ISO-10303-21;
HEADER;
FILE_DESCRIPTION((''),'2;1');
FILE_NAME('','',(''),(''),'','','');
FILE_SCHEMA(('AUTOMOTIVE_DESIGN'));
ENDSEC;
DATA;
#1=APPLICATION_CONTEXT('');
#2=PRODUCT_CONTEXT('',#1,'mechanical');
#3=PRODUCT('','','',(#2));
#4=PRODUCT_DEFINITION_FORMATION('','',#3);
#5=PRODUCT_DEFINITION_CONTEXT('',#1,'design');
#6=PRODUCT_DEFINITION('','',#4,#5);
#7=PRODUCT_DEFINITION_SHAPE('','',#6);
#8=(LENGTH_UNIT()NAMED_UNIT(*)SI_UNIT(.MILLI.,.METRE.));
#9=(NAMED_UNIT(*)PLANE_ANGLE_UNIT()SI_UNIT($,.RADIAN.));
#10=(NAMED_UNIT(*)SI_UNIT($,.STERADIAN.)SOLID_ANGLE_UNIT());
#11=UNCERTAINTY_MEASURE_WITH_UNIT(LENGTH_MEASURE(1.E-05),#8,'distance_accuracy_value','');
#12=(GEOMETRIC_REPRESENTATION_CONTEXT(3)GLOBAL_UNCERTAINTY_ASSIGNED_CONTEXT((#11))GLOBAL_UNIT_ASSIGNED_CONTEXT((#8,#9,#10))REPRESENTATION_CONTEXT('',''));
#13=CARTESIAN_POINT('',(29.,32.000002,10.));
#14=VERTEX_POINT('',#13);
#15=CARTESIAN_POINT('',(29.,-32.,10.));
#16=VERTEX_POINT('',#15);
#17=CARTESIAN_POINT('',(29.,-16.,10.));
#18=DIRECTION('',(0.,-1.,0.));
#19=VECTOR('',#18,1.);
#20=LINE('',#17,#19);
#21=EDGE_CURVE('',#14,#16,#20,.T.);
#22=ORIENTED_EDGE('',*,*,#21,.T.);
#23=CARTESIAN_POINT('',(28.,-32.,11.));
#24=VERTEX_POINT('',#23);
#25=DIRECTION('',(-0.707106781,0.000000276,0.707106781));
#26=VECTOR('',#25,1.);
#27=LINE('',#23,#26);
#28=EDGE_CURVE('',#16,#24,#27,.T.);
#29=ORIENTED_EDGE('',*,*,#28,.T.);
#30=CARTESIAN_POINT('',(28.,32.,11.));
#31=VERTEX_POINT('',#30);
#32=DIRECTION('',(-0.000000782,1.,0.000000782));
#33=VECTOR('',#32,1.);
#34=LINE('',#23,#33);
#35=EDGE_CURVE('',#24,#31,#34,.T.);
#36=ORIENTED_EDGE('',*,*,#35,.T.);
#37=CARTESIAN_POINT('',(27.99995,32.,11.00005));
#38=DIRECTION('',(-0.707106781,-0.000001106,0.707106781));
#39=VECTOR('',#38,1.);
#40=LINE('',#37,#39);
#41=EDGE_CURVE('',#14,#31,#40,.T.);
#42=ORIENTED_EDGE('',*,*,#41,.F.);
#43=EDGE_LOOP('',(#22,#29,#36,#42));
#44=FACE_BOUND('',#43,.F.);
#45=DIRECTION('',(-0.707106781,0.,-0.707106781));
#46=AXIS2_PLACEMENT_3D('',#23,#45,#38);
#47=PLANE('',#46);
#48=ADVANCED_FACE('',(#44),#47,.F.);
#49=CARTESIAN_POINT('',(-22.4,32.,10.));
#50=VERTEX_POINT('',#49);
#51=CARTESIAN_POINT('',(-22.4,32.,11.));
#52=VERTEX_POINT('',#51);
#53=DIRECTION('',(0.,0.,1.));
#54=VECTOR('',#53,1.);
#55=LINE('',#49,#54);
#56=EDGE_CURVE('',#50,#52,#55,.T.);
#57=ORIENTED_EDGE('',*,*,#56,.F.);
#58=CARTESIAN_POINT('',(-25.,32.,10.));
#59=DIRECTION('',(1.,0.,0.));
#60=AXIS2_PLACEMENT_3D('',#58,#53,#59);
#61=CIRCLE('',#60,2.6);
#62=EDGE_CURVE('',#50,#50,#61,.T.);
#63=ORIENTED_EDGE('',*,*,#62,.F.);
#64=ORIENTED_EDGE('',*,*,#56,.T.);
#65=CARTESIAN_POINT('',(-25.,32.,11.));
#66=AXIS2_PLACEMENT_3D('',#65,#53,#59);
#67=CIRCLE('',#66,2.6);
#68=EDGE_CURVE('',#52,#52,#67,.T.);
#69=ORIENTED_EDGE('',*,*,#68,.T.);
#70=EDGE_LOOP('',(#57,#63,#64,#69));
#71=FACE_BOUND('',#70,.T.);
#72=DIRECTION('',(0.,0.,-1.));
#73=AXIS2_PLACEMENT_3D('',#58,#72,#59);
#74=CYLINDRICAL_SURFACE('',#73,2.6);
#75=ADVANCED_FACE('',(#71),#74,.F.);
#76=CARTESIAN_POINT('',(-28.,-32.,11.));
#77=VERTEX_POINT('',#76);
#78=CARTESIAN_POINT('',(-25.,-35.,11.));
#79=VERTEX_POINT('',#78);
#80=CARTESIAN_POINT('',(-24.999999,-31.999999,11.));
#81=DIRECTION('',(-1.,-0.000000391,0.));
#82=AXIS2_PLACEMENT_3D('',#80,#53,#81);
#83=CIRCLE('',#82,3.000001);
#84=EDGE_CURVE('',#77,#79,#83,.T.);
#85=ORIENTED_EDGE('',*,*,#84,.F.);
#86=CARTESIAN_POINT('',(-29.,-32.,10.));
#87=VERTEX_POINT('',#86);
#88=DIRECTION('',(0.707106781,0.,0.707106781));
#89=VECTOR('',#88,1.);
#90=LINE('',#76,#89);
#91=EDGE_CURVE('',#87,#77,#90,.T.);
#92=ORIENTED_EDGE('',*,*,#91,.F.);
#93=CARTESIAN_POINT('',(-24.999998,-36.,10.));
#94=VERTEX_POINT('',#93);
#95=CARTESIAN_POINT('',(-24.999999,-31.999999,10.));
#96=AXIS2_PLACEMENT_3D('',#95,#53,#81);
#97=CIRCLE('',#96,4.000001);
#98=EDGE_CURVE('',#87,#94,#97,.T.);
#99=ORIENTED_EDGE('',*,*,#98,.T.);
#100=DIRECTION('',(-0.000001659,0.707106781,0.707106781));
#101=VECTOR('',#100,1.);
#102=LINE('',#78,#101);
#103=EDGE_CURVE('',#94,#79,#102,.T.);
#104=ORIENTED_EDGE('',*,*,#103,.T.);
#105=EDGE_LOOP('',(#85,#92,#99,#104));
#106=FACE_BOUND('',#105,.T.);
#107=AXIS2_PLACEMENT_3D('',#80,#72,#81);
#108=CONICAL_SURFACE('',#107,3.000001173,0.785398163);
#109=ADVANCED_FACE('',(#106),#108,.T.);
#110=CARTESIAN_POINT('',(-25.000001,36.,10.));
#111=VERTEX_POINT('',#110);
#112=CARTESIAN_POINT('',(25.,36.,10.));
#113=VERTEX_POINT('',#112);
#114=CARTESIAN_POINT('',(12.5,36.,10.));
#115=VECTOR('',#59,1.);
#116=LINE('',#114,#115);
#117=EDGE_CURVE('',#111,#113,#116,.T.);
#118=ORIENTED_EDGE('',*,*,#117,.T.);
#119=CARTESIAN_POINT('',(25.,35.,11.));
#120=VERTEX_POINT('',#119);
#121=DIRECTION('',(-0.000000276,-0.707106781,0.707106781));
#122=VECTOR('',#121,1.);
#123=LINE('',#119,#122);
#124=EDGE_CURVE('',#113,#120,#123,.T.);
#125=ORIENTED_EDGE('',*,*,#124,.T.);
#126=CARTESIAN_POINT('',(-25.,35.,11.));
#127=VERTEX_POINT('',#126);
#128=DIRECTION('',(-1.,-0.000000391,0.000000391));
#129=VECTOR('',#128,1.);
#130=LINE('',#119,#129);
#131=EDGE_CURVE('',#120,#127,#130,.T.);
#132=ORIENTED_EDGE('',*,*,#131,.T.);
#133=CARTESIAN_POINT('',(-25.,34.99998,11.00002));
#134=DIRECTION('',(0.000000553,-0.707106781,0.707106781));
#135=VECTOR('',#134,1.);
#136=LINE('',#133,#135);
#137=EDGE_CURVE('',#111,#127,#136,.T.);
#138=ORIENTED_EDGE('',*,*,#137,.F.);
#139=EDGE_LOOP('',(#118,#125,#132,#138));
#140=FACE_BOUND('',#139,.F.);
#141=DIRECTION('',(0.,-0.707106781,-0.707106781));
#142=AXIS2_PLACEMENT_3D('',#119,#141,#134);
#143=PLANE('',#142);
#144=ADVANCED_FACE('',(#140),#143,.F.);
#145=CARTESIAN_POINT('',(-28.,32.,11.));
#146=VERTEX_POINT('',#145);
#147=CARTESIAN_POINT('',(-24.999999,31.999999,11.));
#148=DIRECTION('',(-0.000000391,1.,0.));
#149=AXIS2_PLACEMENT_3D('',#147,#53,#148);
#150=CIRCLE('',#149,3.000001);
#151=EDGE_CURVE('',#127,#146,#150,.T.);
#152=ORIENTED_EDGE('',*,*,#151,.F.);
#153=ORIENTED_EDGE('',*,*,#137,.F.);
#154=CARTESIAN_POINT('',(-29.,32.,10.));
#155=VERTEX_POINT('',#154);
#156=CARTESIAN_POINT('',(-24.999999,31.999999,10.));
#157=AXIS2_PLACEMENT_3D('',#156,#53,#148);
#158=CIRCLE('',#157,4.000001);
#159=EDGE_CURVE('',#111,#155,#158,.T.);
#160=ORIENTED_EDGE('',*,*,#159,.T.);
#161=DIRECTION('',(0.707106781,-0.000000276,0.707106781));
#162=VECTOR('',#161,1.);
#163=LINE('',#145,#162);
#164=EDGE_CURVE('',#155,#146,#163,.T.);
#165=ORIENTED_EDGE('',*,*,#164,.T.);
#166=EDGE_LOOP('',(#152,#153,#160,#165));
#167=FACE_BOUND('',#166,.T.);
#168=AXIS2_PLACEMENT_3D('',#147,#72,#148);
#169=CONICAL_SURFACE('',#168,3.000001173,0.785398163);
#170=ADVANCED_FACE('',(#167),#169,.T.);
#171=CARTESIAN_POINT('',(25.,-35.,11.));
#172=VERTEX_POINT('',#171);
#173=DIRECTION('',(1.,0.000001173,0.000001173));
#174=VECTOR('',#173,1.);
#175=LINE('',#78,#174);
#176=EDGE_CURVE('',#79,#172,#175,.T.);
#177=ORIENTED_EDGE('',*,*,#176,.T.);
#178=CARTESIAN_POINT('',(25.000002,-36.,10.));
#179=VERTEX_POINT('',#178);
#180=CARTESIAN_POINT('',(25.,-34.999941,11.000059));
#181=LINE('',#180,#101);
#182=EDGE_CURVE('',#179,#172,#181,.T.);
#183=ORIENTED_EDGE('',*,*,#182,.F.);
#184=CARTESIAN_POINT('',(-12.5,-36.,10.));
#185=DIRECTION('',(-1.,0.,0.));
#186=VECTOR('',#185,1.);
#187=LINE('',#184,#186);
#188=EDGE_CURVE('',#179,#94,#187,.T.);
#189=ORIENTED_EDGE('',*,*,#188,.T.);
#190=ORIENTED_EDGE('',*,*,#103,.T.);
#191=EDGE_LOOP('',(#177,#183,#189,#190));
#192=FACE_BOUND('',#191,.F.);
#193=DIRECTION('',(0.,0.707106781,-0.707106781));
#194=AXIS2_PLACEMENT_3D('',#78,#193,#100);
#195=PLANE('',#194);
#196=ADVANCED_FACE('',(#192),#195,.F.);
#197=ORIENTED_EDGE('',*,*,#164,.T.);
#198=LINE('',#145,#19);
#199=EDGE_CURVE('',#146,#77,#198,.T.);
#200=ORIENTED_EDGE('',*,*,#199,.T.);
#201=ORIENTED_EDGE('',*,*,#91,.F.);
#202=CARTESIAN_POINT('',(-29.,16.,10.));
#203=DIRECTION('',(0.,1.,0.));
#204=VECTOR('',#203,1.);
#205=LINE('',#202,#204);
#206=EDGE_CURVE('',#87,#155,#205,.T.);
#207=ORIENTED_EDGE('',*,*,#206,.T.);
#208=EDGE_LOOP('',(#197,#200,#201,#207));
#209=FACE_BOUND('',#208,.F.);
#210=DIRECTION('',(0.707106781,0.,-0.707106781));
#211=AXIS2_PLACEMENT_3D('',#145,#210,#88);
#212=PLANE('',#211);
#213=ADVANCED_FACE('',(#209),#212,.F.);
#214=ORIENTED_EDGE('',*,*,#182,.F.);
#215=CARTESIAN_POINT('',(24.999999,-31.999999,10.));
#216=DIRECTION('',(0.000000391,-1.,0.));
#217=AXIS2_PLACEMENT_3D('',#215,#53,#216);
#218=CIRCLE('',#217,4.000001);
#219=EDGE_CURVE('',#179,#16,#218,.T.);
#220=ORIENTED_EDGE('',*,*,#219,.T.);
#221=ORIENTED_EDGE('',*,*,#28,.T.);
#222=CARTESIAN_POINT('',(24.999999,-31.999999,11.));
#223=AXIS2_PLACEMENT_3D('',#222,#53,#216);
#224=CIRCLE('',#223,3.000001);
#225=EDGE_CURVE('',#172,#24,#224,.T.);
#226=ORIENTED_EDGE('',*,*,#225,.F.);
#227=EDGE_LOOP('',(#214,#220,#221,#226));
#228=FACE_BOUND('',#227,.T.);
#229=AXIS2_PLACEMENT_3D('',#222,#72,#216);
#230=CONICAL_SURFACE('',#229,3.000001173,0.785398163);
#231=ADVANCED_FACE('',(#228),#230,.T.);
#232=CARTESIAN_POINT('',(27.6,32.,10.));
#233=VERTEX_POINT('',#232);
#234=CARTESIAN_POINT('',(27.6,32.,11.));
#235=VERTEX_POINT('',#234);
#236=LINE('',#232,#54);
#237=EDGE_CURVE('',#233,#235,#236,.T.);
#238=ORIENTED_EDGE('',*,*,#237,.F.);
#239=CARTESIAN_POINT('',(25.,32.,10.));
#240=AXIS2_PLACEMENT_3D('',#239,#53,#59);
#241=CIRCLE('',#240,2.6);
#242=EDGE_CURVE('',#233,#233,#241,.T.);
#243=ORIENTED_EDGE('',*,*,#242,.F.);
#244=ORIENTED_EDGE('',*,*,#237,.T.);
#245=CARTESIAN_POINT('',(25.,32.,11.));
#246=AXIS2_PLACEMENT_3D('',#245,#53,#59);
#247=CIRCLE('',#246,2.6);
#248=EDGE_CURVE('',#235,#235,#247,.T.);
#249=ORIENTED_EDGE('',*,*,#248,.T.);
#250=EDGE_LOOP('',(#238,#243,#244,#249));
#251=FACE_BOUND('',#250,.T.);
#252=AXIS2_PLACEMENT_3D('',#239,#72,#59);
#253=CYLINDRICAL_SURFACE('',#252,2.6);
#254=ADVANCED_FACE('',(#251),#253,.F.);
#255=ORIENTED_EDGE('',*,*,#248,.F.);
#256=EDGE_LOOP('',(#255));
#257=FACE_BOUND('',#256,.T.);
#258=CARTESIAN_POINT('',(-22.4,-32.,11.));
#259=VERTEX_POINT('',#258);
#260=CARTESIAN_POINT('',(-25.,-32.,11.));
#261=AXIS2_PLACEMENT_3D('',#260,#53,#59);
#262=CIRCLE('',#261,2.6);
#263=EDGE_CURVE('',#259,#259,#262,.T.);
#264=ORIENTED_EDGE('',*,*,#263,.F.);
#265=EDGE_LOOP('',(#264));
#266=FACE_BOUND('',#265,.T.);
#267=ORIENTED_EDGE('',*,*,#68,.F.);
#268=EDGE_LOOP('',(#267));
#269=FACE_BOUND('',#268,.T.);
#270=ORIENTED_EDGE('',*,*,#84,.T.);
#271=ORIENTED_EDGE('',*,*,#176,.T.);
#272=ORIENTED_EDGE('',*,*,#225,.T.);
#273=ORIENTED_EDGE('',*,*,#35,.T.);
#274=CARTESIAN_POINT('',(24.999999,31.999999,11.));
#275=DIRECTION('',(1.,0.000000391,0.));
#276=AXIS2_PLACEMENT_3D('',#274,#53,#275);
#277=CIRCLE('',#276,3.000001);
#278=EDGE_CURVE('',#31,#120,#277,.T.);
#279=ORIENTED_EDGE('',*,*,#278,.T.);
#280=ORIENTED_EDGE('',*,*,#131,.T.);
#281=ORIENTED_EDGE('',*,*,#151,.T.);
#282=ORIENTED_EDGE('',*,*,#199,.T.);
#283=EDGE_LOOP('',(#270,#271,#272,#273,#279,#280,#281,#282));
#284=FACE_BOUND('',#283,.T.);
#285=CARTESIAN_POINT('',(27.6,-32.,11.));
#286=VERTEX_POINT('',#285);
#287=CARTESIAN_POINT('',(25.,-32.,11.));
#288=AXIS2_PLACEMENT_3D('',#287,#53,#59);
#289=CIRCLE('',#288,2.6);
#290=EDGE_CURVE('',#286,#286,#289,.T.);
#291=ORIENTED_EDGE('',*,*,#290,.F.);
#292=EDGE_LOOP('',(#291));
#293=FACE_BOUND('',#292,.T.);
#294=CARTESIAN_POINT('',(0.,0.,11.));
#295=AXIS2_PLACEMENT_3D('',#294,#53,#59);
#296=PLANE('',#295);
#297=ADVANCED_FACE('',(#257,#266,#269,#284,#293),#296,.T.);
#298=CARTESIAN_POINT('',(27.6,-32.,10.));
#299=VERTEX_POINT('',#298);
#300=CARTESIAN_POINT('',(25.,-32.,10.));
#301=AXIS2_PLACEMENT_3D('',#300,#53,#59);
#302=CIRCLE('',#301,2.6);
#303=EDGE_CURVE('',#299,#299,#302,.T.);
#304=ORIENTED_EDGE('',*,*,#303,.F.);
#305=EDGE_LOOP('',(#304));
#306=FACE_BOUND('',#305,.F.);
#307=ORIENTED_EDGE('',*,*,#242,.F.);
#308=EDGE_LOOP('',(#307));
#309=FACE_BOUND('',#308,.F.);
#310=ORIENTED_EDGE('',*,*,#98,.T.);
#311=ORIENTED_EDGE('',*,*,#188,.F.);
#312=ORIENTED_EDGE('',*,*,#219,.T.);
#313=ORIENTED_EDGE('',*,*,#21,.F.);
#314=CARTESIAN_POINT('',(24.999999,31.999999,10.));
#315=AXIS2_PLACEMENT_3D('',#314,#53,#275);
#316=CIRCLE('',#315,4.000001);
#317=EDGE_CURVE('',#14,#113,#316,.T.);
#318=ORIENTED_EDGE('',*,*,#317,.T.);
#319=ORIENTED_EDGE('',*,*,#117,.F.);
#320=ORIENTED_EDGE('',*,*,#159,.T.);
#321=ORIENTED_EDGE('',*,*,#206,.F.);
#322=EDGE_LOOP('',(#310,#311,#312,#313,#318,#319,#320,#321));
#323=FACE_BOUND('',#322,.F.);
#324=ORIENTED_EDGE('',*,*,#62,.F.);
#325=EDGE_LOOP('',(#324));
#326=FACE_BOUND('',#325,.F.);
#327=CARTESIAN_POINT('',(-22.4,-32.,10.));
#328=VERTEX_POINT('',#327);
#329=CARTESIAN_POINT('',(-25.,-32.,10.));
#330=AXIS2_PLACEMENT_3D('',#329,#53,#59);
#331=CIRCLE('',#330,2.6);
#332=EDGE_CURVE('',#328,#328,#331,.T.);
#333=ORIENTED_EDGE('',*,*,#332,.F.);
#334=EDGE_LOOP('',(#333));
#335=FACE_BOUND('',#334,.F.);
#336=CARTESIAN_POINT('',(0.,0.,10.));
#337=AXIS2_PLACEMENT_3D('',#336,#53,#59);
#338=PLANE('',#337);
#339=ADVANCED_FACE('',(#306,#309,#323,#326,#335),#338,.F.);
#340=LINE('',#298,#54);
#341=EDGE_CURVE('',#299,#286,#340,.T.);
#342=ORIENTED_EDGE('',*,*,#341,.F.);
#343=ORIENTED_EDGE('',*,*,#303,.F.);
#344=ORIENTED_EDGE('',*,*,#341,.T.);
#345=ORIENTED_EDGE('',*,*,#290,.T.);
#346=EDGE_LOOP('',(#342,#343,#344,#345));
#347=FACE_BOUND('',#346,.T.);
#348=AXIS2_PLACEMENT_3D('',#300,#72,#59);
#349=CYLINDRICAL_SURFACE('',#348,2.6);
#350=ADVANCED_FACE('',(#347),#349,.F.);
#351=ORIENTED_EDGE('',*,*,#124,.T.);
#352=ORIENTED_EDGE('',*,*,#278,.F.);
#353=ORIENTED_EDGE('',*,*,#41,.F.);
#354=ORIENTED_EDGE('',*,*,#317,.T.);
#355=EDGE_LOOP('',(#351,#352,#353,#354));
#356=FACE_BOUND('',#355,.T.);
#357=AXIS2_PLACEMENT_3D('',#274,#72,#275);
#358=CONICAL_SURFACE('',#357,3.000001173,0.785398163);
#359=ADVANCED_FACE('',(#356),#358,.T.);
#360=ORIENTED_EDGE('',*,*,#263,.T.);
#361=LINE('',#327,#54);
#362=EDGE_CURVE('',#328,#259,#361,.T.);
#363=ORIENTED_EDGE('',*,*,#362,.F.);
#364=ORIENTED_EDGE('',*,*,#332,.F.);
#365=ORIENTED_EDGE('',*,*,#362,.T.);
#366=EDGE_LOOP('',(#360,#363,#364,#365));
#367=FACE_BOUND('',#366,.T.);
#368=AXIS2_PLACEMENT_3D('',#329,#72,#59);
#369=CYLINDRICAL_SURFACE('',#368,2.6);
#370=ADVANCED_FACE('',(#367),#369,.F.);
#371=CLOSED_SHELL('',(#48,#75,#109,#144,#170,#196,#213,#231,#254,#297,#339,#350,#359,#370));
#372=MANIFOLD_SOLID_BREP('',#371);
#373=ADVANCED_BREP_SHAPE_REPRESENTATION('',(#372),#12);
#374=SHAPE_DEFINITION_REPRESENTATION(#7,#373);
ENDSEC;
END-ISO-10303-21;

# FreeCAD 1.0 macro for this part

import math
import FreeCAD as App
import Part
import Sketcher
Q = App.Units.Quantity

doc = App.newDocument("Part")
body = doc.addObject("PartDesign::Body", "Body")

# Sketch on XZ plane
sketch1 = doc.addObject("Sketcher::SketchObject", "Sketch")
body.addObject(sketch1)
sketch1.AttachmentSupport = (doc.XZ_Plane, [""])
sketch1.MapMode = "FlatFace"
sketch1.addGeometry(Part.LineSegment(App.Vector(-30, 9, 0), App.Vector(-28, 11, 0)), False)
sketch1.addGeometry(Part.LineSegment(App.Vector(-28, 11, 0), App.Vector(-28, 12, 0)), False)
sketch1.addGeometry(Part.LineSegment(App.Vector(-28, 12, 0), App.Vector(-33, 12, 0)), False)
sketch1.addGeometry(Part.LineSegment(App.Vector(-33, 12, 0), App.Vector(-33, -2, 0)), False)
sketch1.addGeometry(Part.LineSegment(App.Vector(-33, -2, 0), App.Vector(-28, -2, 0)), False)
sketch1.addGeometry(Part.LineSegment(App.Vector(-28, -2, 0), App.Vector(-28, -1, 0)), False)
sketch1.addGeometry(Part.LineSegment(App.Vector(-28, -1, 0), App.Vector(-30, 1, 0)), False)
sketch1.addGeometry(Part.LineSegment(App.Vector(-30, 1, 0), App.Vector(-30, 9, 0)), False)
sketch1.addConstraint(Sketcher.Constraint("Coincident", 0, 2, 1, 1))
sketch1.addConstraint(Sketcher.Constraint("Coincident", 1, 2, 2, 1))
sketch1.addConstraint(Sketcher.Constraint("Coincident", 2, 2, 3, 1))
sketch1.addConstraint(Sketcher.Constraint("Coincident", 3, 2, 4, 1))
sketch1.addConstraint(Sketcher.Constraint("Coincident", 4, 2, 5, 1))
sketch1.addConstraint(Sketcher.Constraint("Coincident", 5, 2, 6, 1))
sketch1.addConstraint(Sketcher.Constraint("Coincident", 6, 2, 7, 1))
sketch1.addConstraint(Sketcher.Constraint("Coincident", 7, 2, 0, 1))
sketch1.addConstraint(Sketcher.Constraint("Vertical", 1))
sketch1.addConstraint(Sketcher.Constraint("Horizontal", 2))
sketch1.addConstraint(Sketcher.Constraint("Vertical", 3))
sketch1.addConstraint(Sketcher.Constraint("Horizontal", 4))
sketch1.addConstraint(Sketcher.Constraint("Vertical", 5))
sketch1.addConstraint(Sketcher.Constraint("Vertical", 7))
sketch1.addConstraint(Sketcher.Constraint("Perpendicular", 0, 6))
sketch1.addConstraint(Sketcher.Constraint("Vertical", 1, 2, 4, 2))
sketch1.addConstraint(Sketcher.Constraint("Equal", 1, 5))
sketch1.addConstraint(Sketcher.Constraint("Equal", 0, 6))
sketch1.addConstraint(Sketcher.Constraint("DistanceX", 2, 2, 2, 1, Q("5 mm")))
sketch1.addConstraint(Sketcher.Constraint("DistanceY", 1, 1, 1, 2, Q("1 mm")))
sketch1.addConstraint(Sketcher.Constraint("DistanceY", 3, 2, 3, 1, Q("14 mm")))
sketch1.addConstraint(Sketcher.Constraint("DistanceY", 7, 1, 7, 2, Q("8 mm")))
sketch1.addConstraint(Sketcher.Constraint("DistanceX", 0, 2, -1, 1, Q("28 mm")))
sketch1.addConstraint(Sketcher.Constraint("DistanceY", -1, 1, 0, 2, Q("11 mm")))

# Sketch on XY plane
sketch2 = doc.addObject("Sketcher::SketchObject", "Sketch001")
body.addObject(sketch2)
sketch2.AttachmentSupport = (doc.XY_Plane, [""])
sketch2.MapMode = "FlatFace"
sketch2.AttachmentOffset = App.Placement(App.Vector(0, 0, -2), App.Rotation())
sketch2.addGeometry(Part.LineSegment(App.Vector(-25, -35, 0), App.Vector(25, -35, 0)), False)
sketch2.addGeometry(Part.ArcOfCircle(Part.Circle(App.Vector(24.999999, -31.999999, 0), App.Vector(0, 0, 1), 3.000001), math.radians(-89.999978), math.radians(-0.000022)), False)
sketch2.addGeometry(Part.LineSegment(App.Vector(28, -32, 0), App.Vector(28, 32, 0)), False)
sketch2.addGeometry(Part.ArcOfCircle(Part.Circle(App.Vector(24.999999, 31.999999, 0), App.Vector(0, 0, 1), 3.000001), math.radians(0.000022), math.radians(89.999978)), False)
sketch2.addGeometry(Part.LineSegment(App.Vector(25, 35, 0), App.Vector(-25, 35, 0)), False)
sketch2.addGeometry(Part.ArcOfCircle(Part.Circle(App.Vector(-24.999999, 31.999999, 0), App.Vector(0, 0, 1), 3.000001), math.radians(90.000022), math.radians(179.999978)), False)
sketch2.addGeometry(Part.LineSegment(App.Vector(-28, 32, 0), App.Vector(-28, -32, 0)), False)
sketch2.addGeometry(Part.ArcOfCircle(Part.Circle(App.Vector(-24.999999, -31.999999, 0), App.Vector(0, 0, 1), 3.000001), math.radians(-179.999978), math.radians(-90.000022)), False)
sketch2.addConstraint(Sketcher.Constraint("Tangent", 0, 2, 1, 1))
sketch2.addConstraint(Sketcher.Constraint("Tangent", 1, 2, 2, 1))
sketch2.addConstraint(Sketcher.Constraint("Tangent", 2, 2, 3, 1))
sketch2.addConstraint(Sketcher.Constraint("Tangent", 3, 2, 4, 1))
sketch2.addConstraint(Sketcher.Constraint("Tangent", 4, 2, 5, 1))
sketch2.addConstraint(Sketcher.Constraint("Tangent", 5, 2, 6, 1))
sketch2.addConstraint(Sketcher.Constraint("Tangent", 6, 2, 7, 1))
sketch2.addConstraint(Sketcher.Constraint("Tangent", 7, 2, 0, 1))
sketch2.addConstraint(Sketcher.Constraint("Horizontal", 0))
sketch2.addConstraint(Sketcher.Constraint("Vertical", 2))
sketch2.addConstraint(Sketcher.Constraint("Horizontal", 4))
sketch2.addConstraint(Sketcher.Constraint("Vertical", 6))
sketch2.addConstraint(Sketcher.Constraint("Equal", 1, 3))
sketch2.addConstraint(Sketcher.Constraint("Equal", 3, 5))
sketch2.addConstraint(Sketcher.Constraint("Equal", 5, 7))
sketch2.addConstraint(Sketcher.Constraint("Symmetric", 1, 3, 5, 3, -1, 1))
sketch2.addConstraint(Sketcher.Constraint("Radius", 1, Q("3.000001 mm")))
sketch2.addConstraint(Sketcher.Constraint("DistanceX", 0, 1, 0, 2, Q("50 mm")))
sketch2.addConstraint(Sketcher.Constraint("DistanceY", 2, 1, 2, 2, Q("64 mm")))
doc.recompute()

additivepipe = doc.addObject("PartDesign::AdditivePipe", "AdditivePipe")
body.addObject(additivepipe)
additivepipe.Profile = sketch1
additivepipe.Spine = (sketch2, ["Edge1", "Edge2", "Edge3", "Edge4", "Edge5", "Edge6", "Edge7", "Edge8"])
body2 = doc.addObject("PartDesign::Body", "Body001")

# Sketch on XY plane
sketch3 = doc.addObject("Sketcher::SketchObject", "Sketch002")
body2.addObject(sketch3)
sketch3.AttachmentSupport = (doc.getObject("XY_Plane001"), [""])
sketch3.MapMode = "FlatFace"
sketch3.AttachmentOffset = App.Placement(App.Vector(0, 0, 10), App.Rotation())
sketch3.addGeometry(Part.LineSegment(App.Vector(-30, 37, 0), App.Vector(-30, -37, 0)), False)
sketch3.addGeometry(Part.LineSegment(App.Vector(-30, -37, 0), App.Vector(30, -37, 0)), False)
sketch3.addGeometry(Part.LineSegment(App.Vector(30, -37, 0), App.Vector(30, 37, 0)), False)
sketch3.addGeometry(Part.LineSegment(App.Vector(30, 37, 0), App.Vector(-30, 37, 0)), False)
sketch3.addGeometry(Part.Circle(App.Vector(-25, -32, 0), App.Vector(0, 0, 1), 2.6), False)
sketch3.addGeometry(Part.Circle(App.Vector(25, -32, 0), App.Vector(0, 0, 1), 2.6), False)
sketch3.addGeometry(Part.Circle(App.Vector(-25, 32, 0), App.Vector(0, 0, 1), 2.6), False)
sketch3.addGeometry(Part.Circle(App.Vector(25, 32, 0), App.Vector(0, 0, 1), 2.6), False)
sketch3.addConstraint(Sketcher.Constraint("Coincident", 0, 2, 1, 1))
sketch3.addConstraint(Sketcher.Constraint("Coincident", 1, 2, 2, 1))
sketch3.addConstraint(Sketcher.Constraint("Coincident", 2, 2, 3, 1))
sketch3.addConstraint(Sketcher.Constraint("Coincident", 3, 2, 0, 1))
sketch3.addConstraint(Sketcher.Constraint("Vertical", 0))
sketch3.addConstraint(Sketcher.Constraint("Horizontal", 1))
sketch3.addConstraint(Sketcher.Constraint("Vertical", 2))
sketch3.addConstraint(Sketcher.Constraint("Horizontal", 3))
sketch3.addConstraint(Sketcher.Constraint("Equal", 4, 5))
sketch3.addConstraint(Sketcher.Constraint("Equal", 5, 6))
sketch3.addConstraint(Sketcher.Constraint("Equal", 6, 7))
sketch3.addConstraint(Sketcher.Constraint("Symmetric", 5, 3, 6, 3, -1, 1))
sketch3.addConstraint(Sketcher.Constraint("Symmetric", 4, 3, 7, 3, -1, 1))
sketch3.addConstraint(Sketcher.Constraint("Symmetric", 0, 2, 2, 2, -1, 1))
sketch3.addConstraint(Sketcher.Constraint("Symmetric", 4, 3, 5, 3, -2))
sketch3.addConstraint(Sketcher.Constraint("Diameter", 4, Q("5.2 mm")))
sketch3.addConstraint(Sketcher.Constraint("DistanceX", 1, 1, 1, 2, Q("60 mm")))
sketch3.addConstraint(Sketcher.Constraint("DistanceY", 0, 2, 0, 1, Q("74 mm")))
sketch3.addConstraint(Sketcher.Constraint("DistanceX", 4, 3, -1, 1, Q("25 mm")))
sketch3.addConstraint(Sketcher.Constraint("DistanceY", 4, 3, -1, 1, Q("32 mm")))
pad1 = doc.addObject("PartDesign::Pad", "Pad")
body2.addObject(pad1)
pad1.Profile = sketch3
pad1.Length = 1
doc.recompute()

boolean = doc.addObject("PartDesign::Boolean", "Boolean")
body2.addObject(boolean)
boolean.Type = "Cut"
boolean.addObjects([body])

doc.recompute()
